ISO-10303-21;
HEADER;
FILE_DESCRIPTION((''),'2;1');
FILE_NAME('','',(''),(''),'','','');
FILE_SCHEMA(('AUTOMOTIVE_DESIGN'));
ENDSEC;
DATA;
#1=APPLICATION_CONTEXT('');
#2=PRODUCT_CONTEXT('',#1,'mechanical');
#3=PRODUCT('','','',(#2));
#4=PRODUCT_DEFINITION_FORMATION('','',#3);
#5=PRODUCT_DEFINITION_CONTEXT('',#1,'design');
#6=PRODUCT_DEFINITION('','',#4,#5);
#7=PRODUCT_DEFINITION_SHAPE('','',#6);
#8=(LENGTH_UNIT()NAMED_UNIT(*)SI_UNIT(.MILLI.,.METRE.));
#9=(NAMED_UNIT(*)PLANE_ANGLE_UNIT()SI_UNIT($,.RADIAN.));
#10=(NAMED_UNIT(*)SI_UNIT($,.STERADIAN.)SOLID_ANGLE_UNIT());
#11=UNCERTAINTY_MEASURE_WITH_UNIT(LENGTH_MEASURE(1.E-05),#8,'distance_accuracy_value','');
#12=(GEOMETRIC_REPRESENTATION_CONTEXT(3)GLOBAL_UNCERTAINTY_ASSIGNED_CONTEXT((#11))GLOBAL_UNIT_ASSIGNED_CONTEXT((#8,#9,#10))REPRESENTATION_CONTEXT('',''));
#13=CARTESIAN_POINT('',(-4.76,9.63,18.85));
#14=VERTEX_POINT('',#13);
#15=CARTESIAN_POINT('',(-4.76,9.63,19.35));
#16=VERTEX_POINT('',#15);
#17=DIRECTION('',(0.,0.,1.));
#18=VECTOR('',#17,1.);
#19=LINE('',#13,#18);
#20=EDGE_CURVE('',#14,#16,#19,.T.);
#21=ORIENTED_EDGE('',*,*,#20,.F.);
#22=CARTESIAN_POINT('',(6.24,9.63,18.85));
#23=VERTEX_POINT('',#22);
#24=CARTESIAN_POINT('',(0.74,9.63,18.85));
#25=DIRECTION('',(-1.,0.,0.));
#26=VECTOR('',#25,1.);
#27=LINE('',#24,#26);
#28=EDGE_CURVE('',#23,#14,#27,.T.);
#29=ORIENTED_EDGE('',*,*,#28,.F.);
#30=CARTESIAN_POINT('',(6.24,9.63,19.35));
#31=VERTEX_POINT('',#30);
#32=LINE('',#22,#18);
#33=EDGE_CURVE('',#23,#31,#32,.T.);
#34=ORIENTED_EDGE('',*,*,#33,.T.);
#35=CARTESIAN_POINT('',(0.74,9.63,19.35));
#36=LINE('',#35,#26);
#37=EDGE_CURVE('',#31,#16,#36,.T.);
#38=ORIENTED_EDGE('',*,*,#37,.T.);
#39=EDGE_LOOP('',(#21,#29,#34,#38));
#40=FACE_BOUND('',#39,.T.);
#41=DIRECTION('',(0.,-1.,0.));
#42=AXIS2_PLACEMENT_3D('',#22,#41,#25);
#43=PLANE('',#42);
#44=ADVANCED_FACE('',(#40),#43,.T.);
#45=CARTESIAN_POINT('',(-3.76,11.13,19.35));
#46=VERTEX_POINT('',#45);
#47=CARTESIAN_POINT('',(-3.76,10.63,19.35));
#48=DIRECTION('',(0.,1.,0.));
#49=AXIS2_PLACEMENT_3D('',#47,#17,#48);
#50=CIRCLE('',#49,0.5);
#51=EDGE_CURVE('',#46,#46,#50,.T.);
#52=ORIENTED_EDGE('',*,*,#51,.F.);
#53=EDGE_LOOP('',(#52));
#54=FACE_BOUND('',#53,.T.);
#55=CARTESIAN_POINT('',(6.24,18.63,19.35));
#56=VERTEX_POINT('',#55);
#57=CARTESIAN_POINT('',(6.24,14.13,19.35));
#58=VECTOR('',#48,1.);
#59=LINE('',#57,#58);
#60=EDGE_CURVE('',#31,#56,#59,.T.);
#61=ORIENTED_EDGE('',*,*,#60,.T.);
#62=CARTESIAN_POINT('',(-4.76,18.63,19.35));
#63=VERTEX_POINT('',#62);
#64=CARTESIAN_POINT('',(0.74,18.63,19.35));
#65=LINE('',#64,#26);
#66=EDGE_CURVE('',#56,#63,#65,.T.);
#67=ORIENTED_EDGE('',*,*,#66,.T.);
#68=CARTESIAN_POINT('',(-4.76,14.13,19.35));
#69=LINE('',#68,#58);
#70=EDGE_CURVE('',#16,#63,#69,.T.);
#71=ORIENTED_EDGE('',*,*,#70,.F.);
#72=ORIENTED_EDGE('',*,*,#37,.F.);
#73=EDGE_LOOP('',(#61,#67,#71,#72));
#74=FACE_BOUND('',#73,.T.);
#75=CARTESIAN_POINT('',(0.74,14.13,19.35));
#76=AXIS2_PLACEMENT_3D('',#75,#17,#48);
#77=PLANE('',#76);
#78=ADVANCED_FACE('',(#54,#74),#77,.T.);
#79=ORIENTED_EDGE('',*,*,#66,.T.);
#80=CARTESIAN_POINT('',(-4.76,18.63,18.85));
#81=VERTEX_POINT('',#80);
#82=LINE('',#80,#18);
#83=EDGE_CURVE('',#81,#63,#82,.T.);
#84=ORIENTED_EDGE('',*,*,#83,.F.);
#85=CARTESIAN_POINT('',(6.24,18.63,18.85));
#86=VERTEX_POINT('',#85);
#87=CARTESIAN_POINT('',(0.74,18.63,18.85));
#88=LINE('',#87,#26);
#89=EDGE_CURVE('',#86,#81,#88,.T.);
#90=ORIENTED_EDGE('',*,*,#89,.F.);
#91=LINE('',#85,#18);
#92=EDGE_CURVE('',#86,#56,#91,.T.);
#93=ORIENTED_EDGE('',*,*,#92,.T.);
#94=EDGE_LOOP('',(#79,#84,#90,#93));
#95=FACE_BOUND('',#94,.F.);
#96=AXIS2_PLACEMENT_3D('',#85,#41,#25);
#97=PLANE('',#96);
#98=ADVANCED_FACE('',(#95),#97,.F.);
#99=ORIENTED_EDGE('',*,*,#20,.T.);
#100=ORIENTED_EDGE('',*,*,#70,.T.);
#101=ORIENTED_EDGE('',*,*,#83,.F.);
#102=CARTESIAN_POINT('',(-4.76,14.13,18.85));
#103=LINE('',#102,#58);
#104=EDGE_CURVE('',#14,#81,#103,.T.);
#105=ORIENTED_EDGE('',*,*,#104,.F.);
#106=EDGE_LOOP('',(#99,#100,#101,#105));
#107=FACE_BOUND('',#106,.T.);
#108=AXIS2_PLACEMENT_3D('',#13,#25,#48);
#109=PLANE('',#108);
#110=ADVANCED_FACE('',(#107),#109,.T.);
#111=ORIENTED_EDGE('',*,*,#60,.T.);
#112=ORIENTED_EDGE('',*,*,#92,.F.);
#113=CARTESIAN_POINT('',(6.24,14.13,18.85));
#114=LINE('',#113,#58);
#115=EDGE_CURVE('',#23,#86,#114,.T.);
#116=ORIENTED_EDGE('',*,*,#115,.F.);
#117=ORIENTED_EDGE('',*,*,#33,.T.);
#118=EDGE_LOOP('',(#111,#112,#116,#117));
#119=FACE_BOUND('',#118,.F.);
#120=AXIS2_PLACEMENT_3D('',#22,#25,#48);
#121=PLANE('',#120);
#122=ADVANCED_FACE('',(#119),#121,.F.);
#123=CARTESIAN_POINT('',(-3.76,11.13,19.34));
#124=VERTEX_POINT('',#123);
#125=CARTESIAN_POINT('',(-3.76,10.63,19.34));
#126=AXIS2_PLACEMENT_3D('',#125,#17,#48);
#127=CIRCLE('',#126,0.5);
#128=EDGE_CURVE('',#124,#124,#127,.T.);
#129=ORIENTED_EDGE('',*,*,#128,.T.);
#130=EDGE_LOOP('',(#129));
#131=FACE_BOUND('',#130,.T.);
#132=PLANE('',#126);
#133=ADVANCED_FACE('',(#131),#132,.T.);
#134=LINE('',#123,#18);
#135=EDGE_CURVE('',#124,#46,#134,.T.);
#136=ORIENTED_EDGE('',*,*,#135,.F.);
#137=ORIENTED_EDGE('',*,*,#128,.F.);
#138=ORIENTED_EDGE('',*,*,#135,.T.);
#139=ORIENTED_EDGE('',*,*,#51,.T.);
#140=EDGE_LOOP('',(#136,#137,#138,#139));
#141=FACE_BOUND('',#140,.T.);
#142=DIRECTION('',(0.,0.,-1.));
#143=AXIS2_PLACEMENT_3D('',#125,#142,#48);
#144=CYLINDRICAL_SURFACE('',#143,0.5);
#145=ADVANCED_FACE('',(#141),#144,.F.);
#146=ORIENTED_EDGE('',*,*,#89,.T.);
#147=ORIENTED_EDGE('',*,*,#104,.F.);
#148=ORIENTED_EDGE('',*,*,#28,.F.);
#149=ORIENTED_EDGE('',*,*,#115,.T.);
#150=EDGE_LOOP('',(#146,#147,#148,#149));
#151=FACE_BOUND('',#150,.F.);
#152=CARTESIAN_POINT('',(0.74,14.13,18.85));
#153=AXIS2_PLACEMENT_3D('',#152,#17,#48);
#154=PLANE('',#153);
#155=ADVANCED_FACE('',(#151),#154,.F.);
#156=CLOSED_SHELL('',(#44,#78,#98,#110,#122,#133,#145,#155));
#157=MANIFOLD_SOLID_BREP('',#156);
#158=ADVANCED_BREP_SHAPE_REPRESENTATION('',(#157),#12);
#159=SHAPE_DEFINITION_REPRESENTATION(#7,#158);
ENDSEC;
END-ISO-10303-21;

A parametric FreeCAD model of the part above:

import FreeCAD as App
import Part
import Sketcher


def add_polygon(sketch, points):
    """Adds a closed chain of lines whose ends are joined by coincident constraints."""
    first, n = sketch.GeometryCount, len(points)
    for a, b in zip(points, points[1:] + points[:1]):
        sketch.addGeometry(Part.LineSegment(App.Vector(*a, 0), App.Vector(*b, 0)), False)
    for i in range(n):
        sketch.addConstraint(Sketcher.Constraint("Coincident", first + i, 2, first + (i + 1) % n, 1))

doc = App.newDocument("Part")
params = doc.addObject("Spreadsheet::Sheet", "Params")
for row, (alias, value) in enumerate([
    ("sketch1_diameter", "1 mm"),
    ("pad1_length", "0.01 mm"),
    ("sketch2_width", "9 mm"),
    ("sketch2_height", "11 mm"),
    ("pad2_length", "0.5 mm"),
], start=1):
    params.set(f"A{row}", alias)
    params.set(f"B{row}", "=" + value)
    params.setAlias(f"B{row}", alias)

body = doc.addObject("PartDesign::Body", "Body")

# Sketch on XY plane
sketch1 = body.newObject("Sketcher::SketchObject", "Sketch")
sketch1.AttachmentSupport = (doc.getObject("XY_Plane"), [""])
sketch1.MapMode = "FlatFace"
sketch1.AttachmentOffset = App.Placement(App.Vector(0, 0, 0.49), App.Rotation())
sketch1.addGeometry(Part.Circle(App.Vector(1, 10, 0), App.Vector(0, 0, 1), 0.5), False)
sketch1.addConstraint([
    Sketcher.Constraint("Diameter", 0, 1.0),
    Sketcher.Constraint("DistanceX", -1, 1, 0, 3, 1.0),
    Sketcher.Constraint("DistanceY", -1, 1, 0, 3, 10.0),
])
sketch1.setExpression("Constraints[0]", "Params.sketch1_diameter")
pad1 = body.newObject("PartDesign::Pad", "Pad")
pad1.Profile = sketch1
pad1.setExpression("Length", "Params.pad1_length")
body2 = doc.addObject("PartDesign::Body", "Body001")

# Sketch on XY plane
sketch2 = body2.newObject("Sketcher::SketchObject", "Sketch001")
sketch2.AttachmentSupport = (doc.getObject("XY_Plane001"), [""])
sketch2.MapMode = "FlatFace"
add_polygon(sketch2, [(0, 11), (0, 0), (9, 0), (9, 11)])  # lines 0-3
sketch2.addConstraint([
    Sketcher.Constraint("Vertical", 0),
    Sketcher.Constraint("Horizontal", 1),
    Sketcher.Constraint("Vertical", 2),
    Sketcher.Constraint("Horizontal", 3),
    Sketcher.Constraint("Coincident", 0, 2, -1, 1),
    Sketcher.Constraint("DistanceX", 1, 1, 1, 2, 9.0),
    Sketcher.Constraint("DistanceY", 0, 2, 0, 1, 11.0),
])
sketch2.setExpression("Constraints[9]", "Params.sketch2_width")
sketch2.setExpression("Constraints[10]", "Params.sketch2_height")
pad2 = body2.newObject("PartDesign::Pad", "Pad001")
pad2.Profile = sketch2
pad2.setExpression("Length", "Params.pad2_length")
doc.recompute()

boolean = body2.newObject("PartDesign::Boolean", "Boolean")
boolean.Type = "Cut"
boolean.addObjects([body])
body3 = doc.addObject("PartDesign::Body", "Body002")
doc.recompute()

body2.Placement = App.Placement(App.Vector(6.24, 9.63, 18.85), App.Rotation(App.Vector(0, 0, 1), 90))
boolean2 = body3.newObject("PartDesign::Boolean", "Boolean001")
boolean2.Type = "Fuse"
boolean2.addObjects([body2])

doc.recompute()
